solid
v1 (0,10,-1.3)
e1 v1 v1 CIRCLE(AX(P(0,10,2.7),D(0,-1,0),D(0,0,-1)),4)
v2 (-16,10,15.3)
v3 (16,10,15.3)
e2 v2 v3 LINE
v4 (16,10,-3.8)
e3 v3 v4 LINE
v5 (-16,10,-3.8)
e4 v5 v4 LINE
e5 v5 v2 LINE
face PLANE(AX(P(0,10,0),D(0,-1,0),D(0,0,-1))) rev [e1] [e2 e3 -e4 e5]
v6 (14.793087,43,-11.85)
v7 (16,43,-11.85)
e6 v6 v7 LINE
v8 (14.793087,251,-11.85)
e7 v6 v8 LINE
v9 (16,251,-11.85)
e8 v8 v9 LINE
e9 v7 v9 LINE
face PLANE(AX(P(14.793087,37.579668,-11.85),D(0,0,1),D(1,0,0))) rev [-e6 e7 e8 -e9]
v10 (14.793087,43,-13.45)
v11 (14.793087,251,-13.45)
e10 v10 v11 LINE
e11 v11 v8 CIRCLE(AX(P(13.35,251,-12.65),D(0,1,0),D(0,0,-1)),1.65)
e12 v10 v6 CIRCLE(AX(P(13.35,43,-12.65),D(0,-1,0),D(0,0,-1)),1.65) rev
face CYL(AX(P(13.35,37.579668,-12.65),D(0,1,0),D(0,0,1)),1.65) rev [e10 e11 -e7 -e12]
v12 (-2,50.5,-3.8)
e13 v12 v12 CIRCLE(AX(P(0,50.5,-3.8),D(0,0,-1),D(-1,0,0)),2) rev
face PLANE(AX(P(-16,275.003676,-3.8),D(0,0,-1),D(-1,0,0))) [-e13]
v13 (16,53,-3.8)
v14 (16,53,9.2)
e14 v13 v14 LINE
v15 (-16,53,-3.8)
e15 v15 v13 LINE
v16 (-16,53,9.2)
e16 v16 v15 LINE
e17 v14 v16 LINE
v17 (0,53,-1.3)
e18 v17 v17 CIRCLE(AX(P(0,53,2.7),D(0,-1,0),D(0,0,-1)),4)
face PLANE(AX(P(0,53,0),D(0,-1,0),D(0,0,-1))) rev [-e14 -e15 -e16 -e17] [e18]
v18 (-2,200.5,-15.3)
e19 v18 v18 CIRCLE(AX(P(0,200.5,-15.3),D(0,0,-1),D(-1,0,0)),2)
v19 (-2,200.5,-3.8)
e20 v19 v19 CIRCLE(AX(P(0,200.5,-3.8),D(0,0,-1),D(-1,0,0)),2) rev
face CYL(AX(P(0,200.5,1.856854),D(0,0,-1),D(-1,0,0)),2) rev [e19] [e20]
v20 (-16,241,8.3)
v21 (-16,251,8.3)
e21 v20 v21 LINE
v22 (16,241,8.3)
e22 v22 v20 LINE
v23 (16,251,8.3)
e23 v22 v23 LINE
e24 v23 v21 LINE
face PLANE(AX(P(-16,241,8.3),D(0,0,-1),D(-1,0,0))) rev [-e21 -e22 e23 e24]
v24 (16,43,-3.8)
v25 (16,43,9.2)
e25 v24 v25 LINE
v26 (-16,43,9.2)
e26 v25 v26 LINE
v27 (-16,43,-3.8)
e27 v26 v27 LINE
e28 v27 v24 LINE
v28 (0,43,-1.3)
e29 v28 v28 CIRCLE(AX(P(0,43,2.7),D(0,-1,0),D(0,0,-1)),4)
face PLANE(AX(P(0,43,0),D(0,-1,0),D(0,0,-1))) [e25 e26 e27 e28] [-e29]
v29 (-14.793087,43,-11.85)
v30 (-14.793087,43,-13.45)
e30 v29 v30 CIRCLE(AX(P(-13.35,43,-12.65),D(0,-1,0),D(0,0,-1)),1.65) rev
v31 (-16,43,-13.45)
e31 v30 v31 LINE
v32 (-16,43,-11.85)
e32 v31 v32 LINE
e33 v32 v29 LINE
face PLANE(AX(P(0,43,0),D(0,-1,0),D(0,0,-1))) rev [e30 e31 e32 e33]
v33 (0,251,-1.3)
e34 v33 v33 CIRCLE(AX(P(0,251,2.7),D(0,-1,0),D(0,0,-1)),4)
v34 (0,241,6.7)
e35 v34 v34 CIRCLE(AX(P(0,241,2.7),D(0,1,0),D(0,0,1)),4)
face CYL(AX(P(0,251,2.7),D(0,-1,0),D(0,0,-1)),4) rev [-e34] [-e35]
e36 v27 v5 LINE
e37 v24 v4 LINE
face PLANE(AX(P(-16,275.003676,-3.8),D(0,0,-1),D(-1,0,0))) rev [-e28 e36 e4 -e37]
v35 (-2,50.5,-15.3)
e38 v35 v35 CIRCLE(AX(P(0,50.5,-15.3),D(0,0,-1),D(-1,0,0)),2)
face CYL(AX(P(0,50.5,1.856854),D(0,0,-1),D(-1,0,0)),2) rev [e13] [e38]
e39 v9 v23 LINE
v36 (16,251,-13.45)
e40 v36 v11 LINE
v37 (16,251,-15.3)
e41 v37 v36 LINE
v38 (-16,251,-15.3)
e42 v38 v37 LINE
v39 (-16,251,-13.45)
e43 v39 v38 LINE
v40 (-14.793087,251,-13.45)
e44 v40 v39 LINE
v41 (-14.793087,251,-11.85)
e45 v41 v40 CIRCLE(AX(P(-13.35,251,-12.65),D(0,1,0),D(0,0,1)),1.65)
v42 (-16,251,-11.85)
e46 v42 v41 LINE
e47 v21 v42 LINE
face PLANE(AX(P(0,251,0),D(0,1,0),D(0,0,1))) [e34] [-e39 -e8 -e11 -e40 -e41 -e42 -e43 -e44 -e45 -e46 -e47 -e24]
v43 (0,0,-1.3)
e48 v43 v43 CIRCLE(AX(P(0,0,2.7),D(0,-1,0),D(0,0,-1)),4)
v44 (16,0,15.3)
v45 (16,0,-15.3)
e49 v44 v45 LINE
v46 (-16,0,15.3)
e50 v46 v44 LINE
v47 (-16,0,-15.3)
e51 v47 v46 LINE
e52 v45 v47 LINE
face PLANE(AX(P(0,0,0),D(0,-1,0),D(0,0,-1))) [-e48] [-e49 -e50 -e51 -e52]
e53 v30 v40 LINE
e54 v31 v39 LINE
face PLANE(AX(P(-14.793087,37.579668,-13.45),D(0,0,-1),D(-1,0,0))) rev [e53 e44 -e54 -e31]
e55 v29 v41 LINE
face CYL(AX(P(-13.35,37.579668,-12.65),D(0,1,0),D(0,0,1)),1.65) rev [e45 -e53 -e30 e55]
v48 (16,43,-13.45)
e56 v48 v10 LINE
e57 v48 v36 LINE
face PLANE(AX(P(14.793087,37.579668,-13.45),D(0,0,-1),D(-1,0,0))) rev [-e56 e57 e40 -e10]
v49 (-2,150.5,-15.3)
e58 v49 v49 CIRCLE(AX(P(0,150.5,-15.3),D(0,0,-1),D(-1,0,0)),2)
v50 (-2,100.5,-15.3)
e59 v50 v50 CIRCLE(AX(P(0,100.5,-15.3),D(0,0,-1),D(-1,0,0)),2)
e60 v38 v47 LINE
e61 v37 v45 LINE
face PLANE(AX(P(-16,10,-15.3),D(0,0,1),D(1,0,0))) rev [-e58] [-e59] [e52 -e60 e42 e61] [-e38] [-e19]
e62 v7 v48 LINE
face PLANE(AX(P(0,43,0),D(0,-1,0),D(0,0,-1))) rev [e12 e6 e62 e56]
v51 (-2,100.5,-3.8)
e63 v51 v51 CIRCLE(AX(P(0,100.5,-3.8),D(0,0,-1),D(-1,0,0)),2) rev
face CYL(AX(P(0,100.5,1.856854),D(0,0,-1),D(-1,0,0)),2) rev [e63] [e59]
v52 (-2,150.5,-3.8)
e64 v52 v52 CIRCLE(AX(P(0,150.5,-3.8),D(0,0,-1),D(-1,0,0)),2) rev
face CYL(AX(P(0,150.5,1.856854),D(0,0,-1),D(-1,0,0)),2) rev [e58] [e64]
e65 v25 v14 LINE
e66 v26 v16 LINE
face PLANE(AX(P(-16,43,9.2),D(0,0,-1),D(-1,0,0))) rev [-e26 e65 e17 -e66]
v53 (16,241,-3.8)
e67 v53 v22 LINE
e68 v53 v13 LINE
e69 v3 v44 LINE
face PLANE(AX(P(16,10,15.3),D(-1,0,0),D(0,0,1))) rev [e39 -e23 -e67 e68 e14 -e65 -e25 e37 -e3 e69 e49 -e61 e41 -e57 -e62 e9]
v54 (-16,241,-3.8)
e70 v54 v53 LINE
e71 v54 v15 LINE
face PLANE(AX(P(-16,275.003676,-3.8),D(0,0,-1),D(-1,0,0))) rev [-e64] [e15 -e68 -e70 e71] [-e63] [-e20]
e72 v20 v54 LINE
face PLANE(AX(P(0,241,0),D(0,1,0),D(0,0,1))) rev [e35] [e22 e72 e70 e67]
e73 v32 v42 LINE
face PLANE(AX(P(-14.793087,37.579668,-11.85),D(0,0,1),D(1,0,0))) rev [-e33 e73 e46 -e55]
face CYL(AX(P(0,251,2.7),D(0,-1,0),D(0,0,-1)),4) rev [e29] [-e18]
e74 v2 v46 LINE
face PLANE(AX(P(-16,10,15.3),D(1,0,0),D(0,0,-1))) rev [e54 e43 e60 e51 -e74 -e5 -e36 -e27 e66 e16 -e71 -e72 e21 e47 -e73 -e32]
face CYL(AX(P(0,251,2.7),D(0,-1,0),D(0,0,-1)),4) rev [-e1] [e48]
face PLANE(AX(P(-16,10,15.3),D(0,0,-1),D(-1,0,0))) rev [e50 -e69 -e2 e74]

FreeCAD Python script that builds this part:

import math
import FreeCAD as App
import Part
import Sketcher
from FreeCAD import Vector


def add_polygon(sketch, points):
    """Adds a closed chain of lines whose ends are joined by coincident constraints."""
    first, n = sketch.GeometryCount, len(points)
    for a, b in zip(points, points[1:] + points[:1]):
        sketch.addGeometry(Part.LineSegment(App.Vector(*a, 0), App.Vector(*b, 0)), False)
    for i in range(n):
        sketch.addConstraint(Sketcher.Constraint("Coincident", first + i, 2, first + (i + 1) % n, 1))

doc = App.newDocument("Part")
body = doc.addObject("PartDesign::Body", "Body")

# Sketch on XZ plane
sketch1 = doc.addObject("Sketcher::SketchObject", "Sketch")
body.addObject(sketch1)
sketch1.AttachmentSupport = (doc.XZ_Plane, [""])
sketch1.MapMode = "FlatFace"
add_polygon(sketch1, [(-16, -15.3), (-16, 15.3), (16, 15.3), (16, -15.3)])  # lines 0-3
sketch1.addConstraint([
    Sketcher.Constraint("Vertical", 0),
    Sketcher.Constraint("Horizontal", 1),
    Sketcher.Constraint("Vertical", 2),
    Sketcher.Constraint("Horizontal", 3),
    Sketcher.Constraint("Symmetric", 0, 2, 2, 2, -1, 1),
    Sketcher.Constraint("DistanceX", 1, 1, 1, 2, 32.0),
    Sketcher.Constraint("DistanceY", 0, 1, 0, 2, 30.6),
])
pad1 = doc.addObject("PartDesign::Pad", "Pad")
body.addObject(pad1)
pad1.Profile = sketch1
pad1.Length = 10
pad1.Reversed = True
body2 = doc.addObject("PartDesign::Body", "Body001")

# Sketch on XZ plane
sketch2 = doc.addObject("Sketcher::SketchObject", "Sketch001")
body2.addObject(sketch2)
sketch2.AttachmentSupport = (doc.getObject("XZ_Plane001"), [""])
sketch2.MapMode = "FlatFace"
sketch2.AttachmentOffset = App.Placement(Vector(0, 0, -251), App.Rotation())
add_polygon(sketch2, [(16, -15.3), (16, 8.3), (-16, 8.3), (-16, -15.3)])  # lines 0-3
sketch2.addConstraint([
    Sketcher.Constraint("Vertical", 0),
    Sketcher.Constraint("Horizontal", 1),
    Sketcher.Constraint("Vertical", 2),
    Sketcher.Constraint("Horizontal", 3),
    Sketcher.Constraint("DistanceX", 1, 2, 1, 1, 32.0),
    Sketcher.Constraint("DistanceY", 0, 1, 0, 2, 23.6),
    Sketcher.Constraint("DistanceX", -1, 1, 0, 2, 16.0),
    Sketcher.Constraint("DistanceY", -1, 1, 0, 2, 8.3),
])
pad2 = doc.addObject("PartDesign::Pad", "Pad001")
body2.addObject(pad2)
pad2.Profile = sketch2
pad2.Length = 10
body.AllowCompound = True
doc.recompute()

boolean = doc.addObject("PartDesign::Boolean", "Boolean")
body.addObject(boolean)
boolean.Type = "Fuse"
boolean.addObjects([body2])

# Sketch on XZ plane
sketch3 = doc.addObject("Sketcher::SketchObject", "Sketch002")
body.addObject(sketch3)
sketch3.AttachmentSupport = (doc.XZ_Plane, [""])
sketch3.MapMode = "FlatFace"
sketch3.AttachmentOffset = App.Placement(Vector(0, 0, -10), App.Rotation())
add_polygon(sketch3, [(-16, -15.3), (-16, -3.8), (16, -3.8), (16, -15.3)])  # lines 0-3
sketch3.addConstraint([
    Sketcher.Constraint("Vertical", 0),
    Sketcher.Constraint("Horizontal", 1),
    Sketcher.Constraint("Vertical", 2),
    Sketcher.Constraint("Horizontal", 3),
    Sketcher.Constraint("DistanceX", 1, 1, 1, 2, 32.0),
    Sketcher.Constraint("DistanceY", 0, 1, 0, 2, 11.5),
    Sketcher.Constraint("DistanceX", 0, 2, -1, 1, 16.0),
    Sketcher.Constraint("DistanceY", 0, 2, -1, 1, 3.8),
])
pad3 = doc.addObject("PartDesign::Pad", "Pad002")
body.addObject(pad3)
pad3.Profile = sketch3
pad3.Length = 231
pad3.Reversed = True

# Sketch on XZ plane
sketch4 = doc.addObject("Sketcher::SketchObject", "Sketch003")
body.addObject(sketch4)
sketch4.AttachmentSupport = (doc.XZ_Plane, [""])
sketch4.MapMode = "FlatFace"
sketch4.AttachmentOffset = App.Placement(Vector(0, 0, -53), App.Rotation())
add_polygon(sketch4, [(16, -3.8), (16, 9.2), (-16, 9.2), (-16, -3.8)])  # lines 0-3
sketch4.addConstraint([
    Sketcher.Constraint("Vertical", 0),
    Sketcher.Constraint("Horizontal", 1),
    Sketcher.Constraint("Vertical", 2),
    Sketcher.Constraint("Horizontal", 3),
    Sketcher.Constraint("DistanceX", 1, 2, 1, 1, 32.0),
    Sketcher.Constraint("DistanceY", 0, 1, 0, 2, 13.0),
    Sketcher.Constraint("DistanceX", -1, 1, 0, 2, 16.0),
    Sketcher.Constraint("DistanceY", -1, 1, 0, 2, 9.2),
])
pad4 = doc.addObject("PartDesign::Pad", "Pad003")
body.addObject(pad4)
pad4.Profile = sketch4
pad4.Length = 10

# Sketch on XZ plane
sketch5 = doc.addObject("Sketcher::SketchObject", "Sketch004")
body.addObject(sketch5)
sketch5.AttachmentSupport = (doc.XZ_Plane, [""])
sketch5.MapMode = "FlatFace"
sketch5.AttachmentOffset = App.Placement(Vector(0, 0, -43), App.Rotation())
sketch5.addGeometry(Part.Circle(Vector(0, 2.7, 0), Vector(0, 0, 1), 4), False)
sketch5.addConstraint([
    Sketcher.Constraint("PointOnObject", 0, 3, -2),
    Sketcher.Constraint("Diameter", 0, 8.0),
    Sketcher.Constraint("DistanceY", -1, 1, 0, 3, 2.7),
])
pocket1 = doc.addObject("PartDesign::Pocket", "Pocket")
body.addObject(pocket1)
pocket1.Profile = sketch5
pocket1.Type = "ThroughAll"
pocket1.Midplane = True

# Sketch on XY plane
sketch6 = doc.addObject("Sketcher::SketchObject", "Sketch005")
body.addObject(sketch6)
sketch6.AttachmentSupport = (doc.XY_Plane, [""])
sketch6.MapMode = "FlatFace"
sketch6.AttachmentOffset = App.Placement(Vector(0, 0, -15.3), App.Rotation())
sketch6.addGeometry([
    Part.Circle(Vector(0, 50.5, 0), Vector(0, 0, 1), 2),
    Part.Circle(Vector(0, 100.5, 0), Vector(0, 0, 1), 2),
    Part.Circle(Vector(0, 150.5, 0), Vector(0, 0, 1), 2),
    Part.Circle(Vector(0, 200.5, 0), Vector(0, 0, 1), 2),
], False)
sketch6.addConstraint([
    Sketcher.Constraint("Equal", 0, 1),
    Sketcher.Constraint("Equal", 1, 2),
    Sketcher.Constraint("Equal", 2, 3),
    Sketcher.Constraint("PointOnObject", 0, 3, -2),
    Sketcher.Constraint("PointOnObject", 1, 3, -2),
    Sketcher.Constraint("PointOnObject", 2, 3, -2),
    Sketcher.Constraint("PointOnObject", 3, 3, -2),
    Sketcher.Constraint("Diameter", 0, 4.0),
    Sketcher.Constraint("DistanceY", 0, 3, 1, 3, 50.0),
    Sketcher.Constraint("DistanceY", 1, 3, 2, 3, 50.0),
    Sketcher.Constraint("DistanceY", 2, 3, 3, 3, 50.0),
    Sketcher.Constraint("DistanceY", -1, 1, 0, 3, 50.5),
])
pocket2 = doc.addObject("PartDesign::Pocket", "Pocket001")
body.addObject(pocket2)
pocket2.Profile = sketch6
pocket2.Length = 11.5
pocket2.Reversed = True

# Sketch on XZ plane
sketch7 = doc.addObject("Sketcher::SketchObject", "Sketch006")
body.addObject(sketch7)
sketch7.AttachmentSupport = (doc.XZ_Plane, [""])
sketch7.MapMode = "FlatFace"
sketch7.AttachmentOffset = App.Placement(Vector(0, 0, -251), App.Rotation())
sketch7.addGeometry([
    Part.LineSegment(Vector(-16, -13.45, 0), Vector(-16, -11.85, 0)),  # 0
    Part.LineSegment(Vector(-16, -11.85, 0), Vector(-14.793087, -11.85, 0)),  # 1
    Part.ArcOfCircle(Part.Circle(Vector(-13.35, -12.65, 0), Vector(0, 0, 1), 1.65), math.radians(-150.997454), math.radians(150.997454)),  # 2
    Part.LineSegment(Vector(-14.793087, -13.45, 0), Vector(-16, -13.45, 0)),  # 3
    Part.LineSegment(Vector(16, -13.45, 0), Vector(14.793087, -13.45, 0)),  # 4
    Part.ArcOfCircle(Part.Circle(Vector(13.35, -12.65, 0), Vector(0, 0, 1), 1.65), math.radians(29.002546), math.radians(330.997454)),  # 5
    Part.LineSegment(Vector(14.793087, -11.85, 0), Vector(16, -11.85, 0)),  # 6
    Part.LineSegment(Vector(16, -11.85, 0), Vector(16, -13.45, 0)),  # 7
], False)
sketch7.addConstraint([
    Sketcher.Constraint("Coincident", 0, 2, 1, 1),
    Sketcher.Constraint("Coincident", 1, 2, 2, 2),
    Sketcher.Constraint("Coincident", 2, 1, 3, 1),
    Sketcher.Constraint("Coincident", 3, 2, 0, 1),
    Sketcher.Constraint("Coincident", 4, 2, 5, 2),
    Sketcher.Constraint("Coincident", 5, 1, 6, 1),
    Sketcher.Constraint("Coincident", 6, 2, 7, 1),
    Sketcher.Constraint("Coincident", 7, 2, 4, 1),
    Sketcher.Constraint("Vertical", 0),
    Sketcher.Constraint("Horizontal", 1),
    Sketcher.Constraint("Horizontal", 3),
    Sketcher.Constraint("Horizontal", 4),
    Sketcher.Constraint("Horizontal", 6),
    Sketcher.Constraint("Vertical", 7),
    Sketcher.Constraint("Equal", 2, 5),
    Sketcher.Constraint("Symmetric", 2, 3, 5, 3, -2),
    Sketcher.Constraint("Symmetric", 0, 2, 6, 2, -2),
    Sketcher.Constraint("Horizontal", 3, 2, 4, 2),
    Sketcher.Constraint("Vertical", 1, 2, 2, 1),
    Sketcher.Constraint("Radius", 2, 1.65),
    Sketcher.Constraint("DistanceY", 0, 1, 0, 2, 1.6),
    Sketcher.Constraint("DistanceX", 0, 2, -1, 1, 16.0),
    Sketcher.Constraint("DistanceX", 2, 3, 5, 3, 26.7),
    Sketcher.Constraint("DistanceY", 2, 3, -1, 1, 12.65),
])
pocket3 = doc.addObject("PartDesign::Pocket", "Pocket002")
body.addObject(pocket3)
pocket3.Profile = sketch7
pocket3.Length = 208
pocket3.Reversed = True

doc.recompute()
